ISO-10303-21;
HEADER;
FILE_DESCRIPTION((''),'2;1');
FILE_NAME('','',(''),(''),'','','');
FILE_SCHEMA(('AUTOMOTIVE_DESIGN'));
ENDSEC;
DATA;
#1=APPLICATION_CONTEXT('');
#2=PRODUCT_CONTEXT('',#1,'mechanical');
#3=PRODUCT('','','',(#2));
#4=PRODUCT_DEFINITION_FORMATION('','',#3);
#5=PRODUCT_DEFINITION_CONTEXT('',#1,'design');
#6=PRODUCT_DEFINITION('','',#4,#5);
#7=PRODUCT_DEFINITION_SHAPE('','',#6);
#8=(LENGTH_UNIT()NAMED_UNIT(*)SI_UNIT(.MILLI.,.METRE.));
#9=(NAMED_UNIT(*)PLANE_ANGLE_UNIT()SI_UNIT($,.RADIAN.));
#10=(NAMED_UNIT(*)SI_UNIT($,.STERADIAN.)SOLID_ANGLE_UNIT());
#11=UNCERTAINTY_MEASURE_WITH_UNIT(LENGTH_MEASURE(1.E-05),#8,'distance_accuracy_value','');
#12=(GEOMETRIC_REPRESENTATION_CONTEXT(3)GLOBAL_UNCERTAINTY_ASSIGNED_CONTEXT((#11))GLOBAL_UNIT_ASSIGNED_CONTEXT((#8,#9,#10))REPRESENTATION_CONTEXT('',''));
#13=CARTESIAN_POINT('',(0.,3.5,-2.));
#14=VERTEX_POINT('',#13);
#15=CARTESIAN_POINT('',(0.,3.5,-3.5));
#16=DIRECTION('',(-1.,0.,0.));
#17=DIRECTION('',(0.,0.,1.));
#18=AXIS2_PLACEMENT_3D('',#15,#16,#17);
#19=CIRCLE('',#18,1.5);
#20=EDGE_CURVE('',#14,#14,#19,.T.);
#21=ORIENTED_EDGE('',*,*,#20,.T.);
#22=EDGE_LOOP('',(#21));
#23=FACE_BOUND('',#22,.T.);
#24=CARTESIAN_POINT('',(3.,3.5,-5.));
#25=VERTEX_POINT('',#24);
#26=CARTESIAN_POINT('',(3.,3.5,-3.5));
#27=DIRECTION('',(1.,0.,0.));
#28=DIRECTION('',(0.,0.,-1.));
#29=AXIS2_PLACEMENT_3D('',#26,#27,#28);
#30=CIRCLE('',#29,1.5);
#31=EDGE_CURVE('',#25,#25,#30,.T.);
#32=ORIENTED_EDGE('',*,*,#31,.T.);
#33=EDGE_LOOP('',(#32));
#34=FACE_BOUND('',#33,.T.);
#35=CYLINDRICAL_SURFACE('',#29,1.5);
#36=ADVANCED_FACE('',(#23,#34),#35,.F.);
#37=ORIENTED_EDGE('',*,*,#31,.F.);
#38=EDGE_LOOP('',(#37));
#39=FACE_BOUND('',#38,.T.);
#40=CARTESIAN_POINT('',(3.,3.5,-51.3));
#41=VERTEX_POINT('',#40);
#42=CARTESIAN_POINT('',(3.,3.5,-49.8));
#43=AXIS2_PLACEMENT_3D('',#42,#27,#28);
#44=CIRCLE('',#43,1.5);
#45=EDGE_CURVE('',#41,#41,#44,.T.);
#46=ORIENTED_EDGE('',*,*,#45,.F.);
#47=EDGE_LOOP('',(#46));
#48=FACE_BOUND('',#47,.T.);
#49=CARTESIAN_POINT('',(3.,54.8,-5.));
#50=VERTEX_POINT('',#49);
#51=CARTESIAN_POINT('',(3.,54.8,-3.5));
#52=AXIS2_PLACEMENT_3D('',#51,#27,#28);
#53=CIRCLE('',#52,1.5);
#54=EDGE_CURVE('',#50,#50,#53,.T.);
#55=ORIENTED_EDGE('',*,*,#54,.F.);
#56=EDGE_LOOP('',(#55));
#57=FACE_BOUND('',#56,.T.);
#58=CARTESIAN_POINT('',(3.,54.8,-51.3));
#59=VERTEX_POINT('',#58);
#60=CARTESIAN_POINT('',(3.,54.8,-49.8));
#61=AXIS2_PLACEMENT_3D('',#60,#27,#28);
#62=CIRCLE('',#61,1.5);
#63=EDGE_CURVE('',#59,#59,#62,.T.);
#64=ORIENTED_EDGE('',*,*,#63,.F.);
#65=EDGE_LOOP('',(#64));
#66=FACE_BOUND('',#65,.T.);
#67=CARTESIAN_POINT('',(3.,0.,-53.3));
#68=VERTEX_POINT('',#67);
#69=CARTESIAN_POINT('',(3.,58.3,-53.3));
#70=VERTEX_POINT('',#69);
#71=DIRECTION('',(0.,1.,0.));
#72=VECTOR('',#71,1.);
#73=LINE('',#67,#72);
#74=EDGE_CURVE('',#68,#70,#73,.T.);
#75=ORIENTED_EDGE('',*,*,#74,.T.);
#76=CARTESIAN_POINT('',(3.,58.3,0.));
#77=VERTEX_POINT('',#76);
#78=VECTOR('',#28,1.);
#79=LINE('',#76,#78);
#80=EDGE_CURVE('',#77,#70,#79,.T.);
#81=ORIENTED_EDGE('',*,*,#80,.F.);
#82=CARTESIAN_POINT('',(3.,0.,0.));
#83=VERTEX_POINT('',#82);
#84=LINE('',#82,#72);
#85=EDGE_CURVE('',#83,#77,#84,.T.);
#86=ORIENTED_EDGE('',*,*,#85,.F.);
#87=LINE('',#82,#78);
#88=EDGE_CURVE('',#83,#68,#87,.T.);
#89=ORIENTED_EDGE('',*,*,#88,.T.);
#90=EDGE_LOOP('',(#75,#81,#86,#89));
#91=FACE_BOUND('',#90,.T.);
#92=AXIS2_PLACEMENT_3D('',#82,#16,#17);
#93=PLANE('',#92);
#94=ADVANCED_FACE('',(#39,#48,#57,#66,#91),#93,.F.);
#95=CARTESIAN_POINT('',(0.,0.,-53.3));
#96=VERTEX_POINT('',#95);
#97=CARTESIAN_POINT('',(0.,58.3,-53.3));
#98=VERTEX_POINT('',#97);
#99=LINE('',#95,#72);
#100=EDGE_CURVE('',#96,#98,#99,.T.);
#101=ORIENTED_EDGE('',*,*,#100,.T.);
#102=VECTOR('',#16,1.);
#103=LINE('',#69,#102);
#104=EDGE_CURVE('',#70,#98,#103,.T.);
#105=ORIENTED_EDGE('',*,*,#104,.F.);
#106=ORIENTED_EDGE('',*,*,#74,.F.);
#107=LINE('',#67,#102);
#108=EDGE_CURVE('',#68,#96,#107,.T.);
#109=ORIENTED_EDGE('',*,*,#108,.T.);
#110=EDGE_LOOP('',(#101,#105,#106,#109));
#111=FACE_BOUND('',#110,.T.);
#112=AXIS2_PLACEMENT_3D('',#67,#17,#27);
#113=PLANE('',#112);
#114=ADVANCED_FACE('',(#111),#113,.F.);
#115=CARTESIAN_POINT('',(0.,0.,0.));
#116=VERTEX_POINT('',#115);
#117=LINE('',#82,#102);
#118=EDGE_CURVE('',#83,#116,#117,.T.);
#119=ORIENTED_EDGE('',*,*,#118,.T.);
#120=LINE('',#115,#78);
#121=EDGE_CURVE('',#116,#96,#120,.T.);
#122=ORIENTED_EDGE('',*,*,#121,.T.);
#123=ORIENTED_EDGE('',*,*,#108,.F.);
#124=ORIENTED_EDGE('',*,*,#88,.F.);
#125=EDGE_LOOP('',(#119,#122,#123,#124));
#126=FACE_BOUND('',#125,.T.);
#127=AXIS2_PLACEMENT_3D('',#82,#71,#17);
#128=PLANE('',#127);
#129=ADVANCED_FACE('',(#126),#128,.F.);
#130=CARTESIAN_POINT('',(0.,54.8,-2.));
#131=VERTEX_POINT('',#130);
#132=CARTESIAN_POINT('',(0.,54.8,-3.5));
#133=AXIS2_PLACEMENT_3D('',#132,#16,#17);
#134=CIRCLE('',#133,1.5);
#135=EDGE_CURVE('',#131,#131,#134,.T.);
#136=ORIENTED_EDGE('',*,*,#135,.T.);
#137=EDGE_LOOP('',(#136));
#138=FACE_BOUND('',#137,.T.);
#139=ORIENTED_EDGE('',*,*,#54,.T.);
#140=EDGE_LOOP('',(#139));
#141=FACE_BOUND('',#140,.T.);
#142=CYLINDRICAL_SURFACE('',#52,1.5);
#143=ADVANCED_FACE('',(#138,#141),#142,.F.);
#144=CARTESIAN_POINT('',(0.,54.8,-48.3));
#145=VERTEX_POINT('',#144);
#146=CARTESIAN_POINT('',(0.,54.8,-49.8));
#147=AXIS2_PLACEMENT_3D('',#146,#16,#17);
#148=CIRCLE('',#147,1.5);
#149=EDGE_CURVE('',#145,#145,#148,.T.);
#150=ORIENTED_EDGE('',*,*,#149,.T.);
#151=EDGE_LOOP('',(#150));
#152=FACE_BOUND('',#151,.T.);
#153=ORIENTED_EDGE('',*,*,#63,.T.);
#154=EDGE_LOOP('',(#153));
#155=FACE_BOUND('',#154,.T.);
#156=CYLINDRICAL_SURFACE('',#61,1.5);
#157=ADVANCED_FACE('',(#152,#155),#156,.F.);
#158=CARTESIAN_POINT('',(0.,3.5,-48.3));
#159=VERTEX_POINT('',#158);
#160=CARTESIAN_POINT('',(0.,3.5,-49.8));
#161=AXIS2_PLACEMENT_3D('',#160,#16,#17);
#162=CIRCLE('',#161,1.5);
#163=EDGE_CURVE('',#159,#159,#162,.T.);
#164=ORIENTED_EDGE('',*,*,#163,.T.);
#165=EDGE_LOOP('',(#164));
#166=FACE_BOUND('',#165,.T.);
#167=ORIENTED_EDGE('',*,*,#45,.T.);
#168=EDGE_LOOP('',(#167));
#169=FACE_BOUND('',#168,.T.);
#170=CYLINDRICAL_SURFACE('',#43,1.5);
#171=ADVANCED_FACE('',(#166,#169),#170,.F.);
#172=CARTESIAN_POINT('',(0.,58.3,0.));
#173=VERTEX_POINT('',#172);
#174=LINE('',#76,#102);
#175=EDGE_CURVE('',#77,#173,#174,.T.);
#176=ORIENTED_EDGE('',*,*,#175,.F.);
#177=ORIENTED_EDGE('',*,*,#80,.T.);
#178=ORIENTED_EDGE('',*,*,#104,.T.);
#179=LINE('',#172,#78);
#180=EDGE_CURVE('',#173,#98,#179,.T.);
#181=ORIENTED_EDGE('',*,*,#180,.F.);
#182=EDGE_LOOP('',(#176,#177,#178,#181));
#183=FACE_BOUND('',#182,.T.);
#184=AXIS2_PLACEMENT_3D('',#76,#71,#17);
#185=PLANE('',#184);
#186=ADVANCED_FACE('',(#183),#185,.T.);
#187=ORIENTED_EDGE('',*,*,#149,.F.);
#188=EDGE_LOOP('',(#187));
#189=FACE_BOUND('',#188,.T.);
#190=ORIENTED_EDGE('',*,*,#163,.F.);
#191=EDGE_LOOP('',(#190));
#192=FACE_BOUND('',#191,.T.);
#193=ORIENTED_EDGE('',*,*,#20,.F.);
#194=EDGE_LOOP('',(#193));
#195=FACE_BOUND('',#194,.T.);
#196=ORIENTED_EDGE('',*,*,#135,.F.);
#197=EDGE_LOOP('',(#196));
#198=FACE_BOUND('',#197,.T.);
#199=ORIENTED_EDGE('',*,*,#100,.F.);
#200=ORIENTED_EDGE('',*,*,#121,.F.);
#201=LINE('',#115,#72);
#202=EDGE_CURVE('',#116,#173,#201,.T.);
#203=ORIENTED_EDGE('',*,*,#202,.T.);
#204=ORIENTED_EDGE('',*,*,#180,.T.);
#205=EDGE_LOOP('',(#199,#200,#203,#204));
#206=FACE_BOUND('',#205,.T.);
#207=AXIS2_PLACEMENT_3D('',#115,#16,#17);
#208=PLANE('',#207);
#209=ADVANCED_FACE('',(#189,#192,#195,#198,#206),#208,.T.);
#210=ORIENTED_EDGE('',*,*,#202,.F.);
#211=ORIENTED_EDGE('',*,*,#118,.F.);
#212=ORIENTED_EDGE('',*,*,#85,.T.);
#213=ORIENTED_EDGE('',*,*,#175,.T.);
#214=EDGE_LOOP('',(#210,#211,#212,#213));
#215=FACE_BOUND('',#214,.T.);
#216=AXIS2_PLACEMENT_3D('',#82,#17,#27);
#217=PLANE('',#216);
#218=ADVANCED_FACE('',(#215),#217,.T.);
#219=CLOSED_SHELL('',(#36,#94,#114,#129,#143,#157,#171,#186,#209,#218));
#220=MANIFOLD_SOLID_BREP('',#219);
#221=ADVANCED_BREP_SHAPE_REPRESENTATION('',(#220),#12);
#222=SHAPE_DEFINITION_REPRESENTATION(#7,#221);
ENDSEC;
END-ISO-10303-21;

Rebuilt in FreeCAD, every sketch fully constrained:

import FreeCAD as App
import Part
import Sketcher
Q = App.Units.Quantity


def add_polygon(sketch, points):
    """Adds a closed chain of lines whose ends are joined by coincident constraints."""
    first, n = sketch.GeometryCount, len(points)
    for a, b in zip(points, points[1:] + points[:1]):
        sketch.addGeometry(Part.LineSegment(App.Vector(*a, 0), App.Vector(*b, 0)), False)
    for i in range(n):
        sketch.addConstraint(Sketcher.Constraint("Coincident", first + i, 2, first + (i + 1) % n, 1))

doc = App.newDocument("Part")
body = doc.addObject("PartDesign::Body", "Body")

# Sketch on YZ plane
sketch1 = body.newObject("Sketcher::SketchObject", "Sketch")
sketch1.AttachmentSupport = (doc.getObject("YZ_Plane"), [""])
sketch1.MapMode = "FlatFace"
add_polygon(sketch1, [(58, 0), (0, 0), (0, -53), (58, -53)])  # lines 0-3
sketch1.addConstraint([
    Sketcher.Constraint("Horizontal", 0),
    Sketcher.Constraint("Vertical", 1),
    Sketcher.Constraint("Horizontal", 2),
    Sketcher.Constraint("Vertical", 3),
    Sketcher.Constraint("Coincident", 0, 2, -1, 1),
    Sketcher.Constraint("DistanceX", 0, 2, 0, 1, Q("58.3 mm")),
    Sketcher.Constraint("DistanceY", 1, 2, 1, 1, Q("53.3 mm")),
])
pad1 = body.newObject("PartDesign::Pad", "Pad")
pad1.Profile = sketch1
pad1.Length = 3

# Sketch on YZ plane
sketch2 = body.newObject("Sketcher::SketchObject", "Sketch001")
sketch2.AttachmentSupport = (doc.getObject("YZ_Plane"), [""])
sketch2.MapMode = "FlatFace"
sketch2.AttachmentOffset = App.Placement(App.Vector(0, 0, 3), App.Rotation())
sketch2.addGeometry([
    Part.Circle(App.Vector(54.8, -3.5, 0), App.Vector(0, 0, 1), 1.5),
    Part.Circle(App.Vector(54.8, -49.8, 0), App.Vector(0, 0, 1), 1.5),
    Part.Circle(App.Vector(3.5, -49.8, 0), App.Vector(0, 0, 1), 1.5),
    Part.Circle(App.Vector(3.5, -3.5, 0), App.Vector(0, 0, 1), 1.5),
], False)
sketch2.addConstraint([
    Sketcher.Constraint("Equal", 0, 1),
    Sketcher.Constraint("Equal", 1, 2),
    Sketcher.Constraint("Equal", 2, 3),
    Sketcher.Constraint("Horizontal", 1, 3, 2, 3),
    Sketcher.Constraint("Horizontal", 0, 3, 3, 3),
    Sketcher.Constraint("Vertical", 0, 3, 1, 3),
    Sketcher.Constraint("Vertical", 2, 3, 3, 3),
    Sketcher.Constraint("Diameter", 0, Q("3 mm")),
    Sketcher.Constraint("DistanceX", -1, 1, 0, 3, Q("54.8 mm")),
    Sketcher.Constraint("DistanceY", 0, 3, -1, 1, Q("3.5 mm")),
    Sketcher.Constraint("DistanceY", 1, 3, -1, 1, Q("49.8 mm")),
    Sketcher.Constraint("DistanceX", -1, 1, 2, 3, Q("3.5 mm")),
])
doc.recompute()
hole = body.newObject("PartDesign::Hole", "Hole")
hole.Profile = sketch2
hole.ThreadType = "None"
hole.Diameter = 3
hole.DepthType = "ThroughAll"

doc.recompute()
